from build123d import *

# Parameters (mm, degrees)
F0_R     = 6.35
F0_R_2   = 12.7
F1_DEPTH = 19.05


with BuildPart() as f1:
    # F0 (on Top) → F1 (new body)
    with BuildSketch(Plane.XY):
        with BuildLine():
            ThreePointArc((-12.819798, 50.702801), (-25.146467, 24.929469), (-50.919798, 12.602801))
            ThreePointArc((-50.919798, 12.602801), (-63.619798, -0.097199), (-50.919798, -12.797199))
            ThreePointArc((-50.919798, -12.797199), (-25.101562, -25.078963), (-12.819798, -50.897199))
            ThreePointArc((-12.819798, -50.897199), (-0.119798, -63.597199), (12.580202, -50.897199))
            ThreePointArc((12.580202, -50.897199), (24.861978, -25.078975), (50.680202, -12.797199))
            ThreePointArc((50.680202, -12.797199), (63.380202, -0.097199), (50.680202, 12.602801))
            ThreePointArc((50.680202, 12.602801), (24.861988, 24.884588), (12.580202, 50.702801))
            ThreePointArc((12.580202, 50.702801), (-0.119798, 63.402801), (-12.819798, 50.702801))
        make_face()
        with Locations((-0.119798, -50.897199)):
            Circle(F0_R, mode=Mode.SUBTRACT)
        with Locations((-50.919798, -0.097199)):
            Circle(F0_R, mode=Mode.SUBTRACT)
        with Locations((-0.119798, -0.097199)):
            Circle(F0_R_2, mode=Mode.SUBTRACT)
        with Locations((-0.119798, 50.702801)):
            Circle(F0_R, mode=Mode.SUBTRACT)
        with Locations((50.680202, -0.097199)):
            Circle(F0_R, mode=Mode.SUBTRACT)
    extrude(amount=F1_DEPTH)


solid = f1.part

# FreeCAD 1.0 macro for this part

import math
import FreeCAD as App
import Part
import Sketcher
Q = App.Units.Quantity

doc = App.newDocument("Part")
body = doc.addObject("PartDesign::Body", "Body")

sketch1 = body.newObject("Sketcher::SketchObject", "Sketch")
sketch1.AttachmentSupport = (doc.getObject("XY_Plane"), [""])
sketch1.MapMode = "FlatFace"
sketch1.addGeometry(Part.ArcOfCircle(Part.Circle(App.Vector(-55, 55, 0), App.Vector(0, 0, 1), 43), math.radians(-84), math.radians(-6)), False)
sketch1.addGeometry(Part.ArcOfCircle(Part.Circle(App.Vector(-51, 0, 0), App.Vector(0, 0, 1), 13), math.radians(90), math.radians(270)), False)
sketch1.addGeometry(Part.ArcOfCircle(Part.Circle(App.Vector(-55, -55, 0), App.Vector(0, 0, 1), 43), math.radians(6), math.radians(84)), False)
sketch1.addGeometry(Part.ArcOfCircle(Part.Circle(App.Vector(0, -51, 0), App.Vector(0, 0, 1), 13), math.radians(180), math.radians(360)), False)
sketch1.addGeometry(Part.ArcOfCircle(Part.Circle(App.Vector(55, -55, 0), App.Vector(0, 0, 1), 43), math.radians(96), math.radians(174)), False)
sketch1.addGeometry(Part.ArcOfCircle(Part.Circle(App.Vector(51, 0, 0), App.Vector(0, 0, 1), 13), math.radians(-90), math.radians(90)), False)
sketch1.addGeometry(Part.ArcOfCircle(Part.Circle(App.Vector(55, 55, 0), App.Vector(0, 0, 1), 43), math.radians(-174), math.radians(-96)), False)
sketch1.addGeometry(Part.ArcOfCircle(Part.Circle(App.Vector(0, 51, 0), App.Vector(0, 0, 1), 13), math.radians(0), math.radians(180)), False)
sketch1.addGeometry(Part.Circle(App.Vector(0, -51, 0), App.Vector(0, 0, 1), 6), False)
sketch1.addGeometry(Part.Circle(App.Vector(-51, 0, 0), App.Vector(0, 0, 1), 6), False)
sketch1.addGeometry(Part.Circle(App.Vector(0, 0, 0), App.Vector(0, 0, 1), 13), False)
sketch1.addGeometry(Part.Circle(App.Vector(51, 0, 0), App.Vector(0, 0, 1), 6), False)
sketch1.addGeometry(Part.Circle(App.Vector(0, 51, 0), App.Vector(0, 0, 1), 6), False)
sketch1.addConstraint(Sketcher.Constraint("Coincident", 0, 1, 1, 1))
sketch1.addConstraint(Sketcher.Constraint("Coincident", 1, 2, 2, 2))
sketch1.addConstraint(Sketcher.Constraint("Coincident", 2, 1, 3, 1))
sketch1.addConstraint(Sketcher.Constraint("Coincident", 3, 2, 4, 2))
sketch1.addConstraint(Sketcher.Constraint("Coincident", 4, 1, 5, 1))
sketch1.addConstraint(Sketcher.Constraint("Coincident", 5, 2, 6, 2))
sketch1.addConstraint(Sketcher.Constraint("Coincident", 6, 1, 7, 1))
sketch1.addConstraint(Sketcher.Constraint("Coincident", 7, 2, 0, 2))
sketch1.addConstraint(Sketcher.Constraint("Coincident", 8, 3, 3, 3))
sketch1.addConstraint(Sketcher.Constraint("Coincident", 9, 3, 1, 3))
sketch1.addConstraint(Sketcher.Constraint("Coincident", 11, 3, 5, 3))
sketch1.addConstraint(Sketcher.Constraint("Coincident", 12, 3, 7, 3))
sketch1.addConstraint(Sketcher.Constraint("Equal", 1, 3))
sketch1.addConstraint(Sketcher.Constraint("Equal", 3, 5))
sketch1.addConstraint(Sketcher.Constraint("Equal", 5, 7))
sketch1.addConstraint(Sketcher.Constraint("Equal", 8, 9))
sketch1.addConstraint(Sketcher.Constraint("Equal", 7, 10))
sketch1.addConstraint(Sketcher.Constraint("Equal", 9, 11))
sketch1.addConstraint(Sketcher.Constraint("Equal", 11, 12))
sketch1.addConstraint(Sketcher.Constraint("Horizontal", 1, 3, 5, 3))
sketch1.addConstraint(Sketcher.Constraint("Horizontal", 9, 3, 10, 3))
sketch1.addConstraint(Sketcher.Constraint("Horizontal", 8, 3, 2, 1))
sketch1.addConstraint(Sketcher.Constraint("Horizontal", 2, 1, 3, 2))
sketch1.addConstraint(Sketcher.Constraint("Horizontal", 12, 3, 6, 1))
sketch1.addConstraint(Sketcher.Constraint("Horizontal", 6, 1, 7, 2))
sketch1.addConstraint(Sketcher.Constraint("Vertical", 3, 3, 7, 3))
sketch1.addConstraint(Sketcher.Constraint("Vertical", 8, 3, 10, 3))
sketch1.addConstraint(Sketcher.Constraint("Vertical", 9, 3, 0, 1))
sketch1.addConstraint(Sketcher.Constraint("Vertical", 0, 1, 1, 2))
sketch1.addConstraint(Sketcher.Constraint("Vertical", 11, 3, 4, 1))
sketch1.addConstraint(Sketcher.Constraint("Vertical", 4, 1, 5, 2))
sketch1.addConstraint(Sketcher.Constraint("Diameter", 10, Q("1 in")))
sketch1.addConstraint(Sketcher.Constraint("Diameter", 8, Q("0.5 in")))
sketch1.addConstraint(Sketcher.Constraint("DistanceX", 1, 3, 3, 3, Q("2 in")))
sketch1.addConstraint(Sketcher.Constraint("DistanceY", 3, 3, 1, 3, Q("2 in")))
sketch1.addConstraint(Sketcher.Constraint("DistanceX", 3, 3, 5, 3, Q("2 in")))
sketch1.addConstraint(Sketcher.Constraint("DistanceY", 1, 3, 7, 3, Q("2 in")))
sketch1.addConstraint(Sketcher.Constraint("Radius", 0, Q("42.921325 mm")))
sketch1.addConstraint(Sketcher.Constraint("Radius", 2, Q("42.699854 mm")))
sketch1.addConstraint(Sketcher.Constraint("Radius", 4, Q("42.699912 mm")))
sketch1.addConstraint(Sketcher.Constraint("Radius", 6, Q("42.699964 mm")))
sketch1.addConstraint(Sketcher.Constraint("DistanceY", 1, 3, -1, 1, Q("0.097199 mm")))
sketch1.addConstraint(Sketcher.Constraint("DistanceX", 2, 1, -1, 1, Q("12.819798 mm")))
pad1 = body.newObject("PartDesign::Pad", "Pad")
pad1.Profile = sketch1
pad1.Length = Q("0.75 in")

doc.recompute()
